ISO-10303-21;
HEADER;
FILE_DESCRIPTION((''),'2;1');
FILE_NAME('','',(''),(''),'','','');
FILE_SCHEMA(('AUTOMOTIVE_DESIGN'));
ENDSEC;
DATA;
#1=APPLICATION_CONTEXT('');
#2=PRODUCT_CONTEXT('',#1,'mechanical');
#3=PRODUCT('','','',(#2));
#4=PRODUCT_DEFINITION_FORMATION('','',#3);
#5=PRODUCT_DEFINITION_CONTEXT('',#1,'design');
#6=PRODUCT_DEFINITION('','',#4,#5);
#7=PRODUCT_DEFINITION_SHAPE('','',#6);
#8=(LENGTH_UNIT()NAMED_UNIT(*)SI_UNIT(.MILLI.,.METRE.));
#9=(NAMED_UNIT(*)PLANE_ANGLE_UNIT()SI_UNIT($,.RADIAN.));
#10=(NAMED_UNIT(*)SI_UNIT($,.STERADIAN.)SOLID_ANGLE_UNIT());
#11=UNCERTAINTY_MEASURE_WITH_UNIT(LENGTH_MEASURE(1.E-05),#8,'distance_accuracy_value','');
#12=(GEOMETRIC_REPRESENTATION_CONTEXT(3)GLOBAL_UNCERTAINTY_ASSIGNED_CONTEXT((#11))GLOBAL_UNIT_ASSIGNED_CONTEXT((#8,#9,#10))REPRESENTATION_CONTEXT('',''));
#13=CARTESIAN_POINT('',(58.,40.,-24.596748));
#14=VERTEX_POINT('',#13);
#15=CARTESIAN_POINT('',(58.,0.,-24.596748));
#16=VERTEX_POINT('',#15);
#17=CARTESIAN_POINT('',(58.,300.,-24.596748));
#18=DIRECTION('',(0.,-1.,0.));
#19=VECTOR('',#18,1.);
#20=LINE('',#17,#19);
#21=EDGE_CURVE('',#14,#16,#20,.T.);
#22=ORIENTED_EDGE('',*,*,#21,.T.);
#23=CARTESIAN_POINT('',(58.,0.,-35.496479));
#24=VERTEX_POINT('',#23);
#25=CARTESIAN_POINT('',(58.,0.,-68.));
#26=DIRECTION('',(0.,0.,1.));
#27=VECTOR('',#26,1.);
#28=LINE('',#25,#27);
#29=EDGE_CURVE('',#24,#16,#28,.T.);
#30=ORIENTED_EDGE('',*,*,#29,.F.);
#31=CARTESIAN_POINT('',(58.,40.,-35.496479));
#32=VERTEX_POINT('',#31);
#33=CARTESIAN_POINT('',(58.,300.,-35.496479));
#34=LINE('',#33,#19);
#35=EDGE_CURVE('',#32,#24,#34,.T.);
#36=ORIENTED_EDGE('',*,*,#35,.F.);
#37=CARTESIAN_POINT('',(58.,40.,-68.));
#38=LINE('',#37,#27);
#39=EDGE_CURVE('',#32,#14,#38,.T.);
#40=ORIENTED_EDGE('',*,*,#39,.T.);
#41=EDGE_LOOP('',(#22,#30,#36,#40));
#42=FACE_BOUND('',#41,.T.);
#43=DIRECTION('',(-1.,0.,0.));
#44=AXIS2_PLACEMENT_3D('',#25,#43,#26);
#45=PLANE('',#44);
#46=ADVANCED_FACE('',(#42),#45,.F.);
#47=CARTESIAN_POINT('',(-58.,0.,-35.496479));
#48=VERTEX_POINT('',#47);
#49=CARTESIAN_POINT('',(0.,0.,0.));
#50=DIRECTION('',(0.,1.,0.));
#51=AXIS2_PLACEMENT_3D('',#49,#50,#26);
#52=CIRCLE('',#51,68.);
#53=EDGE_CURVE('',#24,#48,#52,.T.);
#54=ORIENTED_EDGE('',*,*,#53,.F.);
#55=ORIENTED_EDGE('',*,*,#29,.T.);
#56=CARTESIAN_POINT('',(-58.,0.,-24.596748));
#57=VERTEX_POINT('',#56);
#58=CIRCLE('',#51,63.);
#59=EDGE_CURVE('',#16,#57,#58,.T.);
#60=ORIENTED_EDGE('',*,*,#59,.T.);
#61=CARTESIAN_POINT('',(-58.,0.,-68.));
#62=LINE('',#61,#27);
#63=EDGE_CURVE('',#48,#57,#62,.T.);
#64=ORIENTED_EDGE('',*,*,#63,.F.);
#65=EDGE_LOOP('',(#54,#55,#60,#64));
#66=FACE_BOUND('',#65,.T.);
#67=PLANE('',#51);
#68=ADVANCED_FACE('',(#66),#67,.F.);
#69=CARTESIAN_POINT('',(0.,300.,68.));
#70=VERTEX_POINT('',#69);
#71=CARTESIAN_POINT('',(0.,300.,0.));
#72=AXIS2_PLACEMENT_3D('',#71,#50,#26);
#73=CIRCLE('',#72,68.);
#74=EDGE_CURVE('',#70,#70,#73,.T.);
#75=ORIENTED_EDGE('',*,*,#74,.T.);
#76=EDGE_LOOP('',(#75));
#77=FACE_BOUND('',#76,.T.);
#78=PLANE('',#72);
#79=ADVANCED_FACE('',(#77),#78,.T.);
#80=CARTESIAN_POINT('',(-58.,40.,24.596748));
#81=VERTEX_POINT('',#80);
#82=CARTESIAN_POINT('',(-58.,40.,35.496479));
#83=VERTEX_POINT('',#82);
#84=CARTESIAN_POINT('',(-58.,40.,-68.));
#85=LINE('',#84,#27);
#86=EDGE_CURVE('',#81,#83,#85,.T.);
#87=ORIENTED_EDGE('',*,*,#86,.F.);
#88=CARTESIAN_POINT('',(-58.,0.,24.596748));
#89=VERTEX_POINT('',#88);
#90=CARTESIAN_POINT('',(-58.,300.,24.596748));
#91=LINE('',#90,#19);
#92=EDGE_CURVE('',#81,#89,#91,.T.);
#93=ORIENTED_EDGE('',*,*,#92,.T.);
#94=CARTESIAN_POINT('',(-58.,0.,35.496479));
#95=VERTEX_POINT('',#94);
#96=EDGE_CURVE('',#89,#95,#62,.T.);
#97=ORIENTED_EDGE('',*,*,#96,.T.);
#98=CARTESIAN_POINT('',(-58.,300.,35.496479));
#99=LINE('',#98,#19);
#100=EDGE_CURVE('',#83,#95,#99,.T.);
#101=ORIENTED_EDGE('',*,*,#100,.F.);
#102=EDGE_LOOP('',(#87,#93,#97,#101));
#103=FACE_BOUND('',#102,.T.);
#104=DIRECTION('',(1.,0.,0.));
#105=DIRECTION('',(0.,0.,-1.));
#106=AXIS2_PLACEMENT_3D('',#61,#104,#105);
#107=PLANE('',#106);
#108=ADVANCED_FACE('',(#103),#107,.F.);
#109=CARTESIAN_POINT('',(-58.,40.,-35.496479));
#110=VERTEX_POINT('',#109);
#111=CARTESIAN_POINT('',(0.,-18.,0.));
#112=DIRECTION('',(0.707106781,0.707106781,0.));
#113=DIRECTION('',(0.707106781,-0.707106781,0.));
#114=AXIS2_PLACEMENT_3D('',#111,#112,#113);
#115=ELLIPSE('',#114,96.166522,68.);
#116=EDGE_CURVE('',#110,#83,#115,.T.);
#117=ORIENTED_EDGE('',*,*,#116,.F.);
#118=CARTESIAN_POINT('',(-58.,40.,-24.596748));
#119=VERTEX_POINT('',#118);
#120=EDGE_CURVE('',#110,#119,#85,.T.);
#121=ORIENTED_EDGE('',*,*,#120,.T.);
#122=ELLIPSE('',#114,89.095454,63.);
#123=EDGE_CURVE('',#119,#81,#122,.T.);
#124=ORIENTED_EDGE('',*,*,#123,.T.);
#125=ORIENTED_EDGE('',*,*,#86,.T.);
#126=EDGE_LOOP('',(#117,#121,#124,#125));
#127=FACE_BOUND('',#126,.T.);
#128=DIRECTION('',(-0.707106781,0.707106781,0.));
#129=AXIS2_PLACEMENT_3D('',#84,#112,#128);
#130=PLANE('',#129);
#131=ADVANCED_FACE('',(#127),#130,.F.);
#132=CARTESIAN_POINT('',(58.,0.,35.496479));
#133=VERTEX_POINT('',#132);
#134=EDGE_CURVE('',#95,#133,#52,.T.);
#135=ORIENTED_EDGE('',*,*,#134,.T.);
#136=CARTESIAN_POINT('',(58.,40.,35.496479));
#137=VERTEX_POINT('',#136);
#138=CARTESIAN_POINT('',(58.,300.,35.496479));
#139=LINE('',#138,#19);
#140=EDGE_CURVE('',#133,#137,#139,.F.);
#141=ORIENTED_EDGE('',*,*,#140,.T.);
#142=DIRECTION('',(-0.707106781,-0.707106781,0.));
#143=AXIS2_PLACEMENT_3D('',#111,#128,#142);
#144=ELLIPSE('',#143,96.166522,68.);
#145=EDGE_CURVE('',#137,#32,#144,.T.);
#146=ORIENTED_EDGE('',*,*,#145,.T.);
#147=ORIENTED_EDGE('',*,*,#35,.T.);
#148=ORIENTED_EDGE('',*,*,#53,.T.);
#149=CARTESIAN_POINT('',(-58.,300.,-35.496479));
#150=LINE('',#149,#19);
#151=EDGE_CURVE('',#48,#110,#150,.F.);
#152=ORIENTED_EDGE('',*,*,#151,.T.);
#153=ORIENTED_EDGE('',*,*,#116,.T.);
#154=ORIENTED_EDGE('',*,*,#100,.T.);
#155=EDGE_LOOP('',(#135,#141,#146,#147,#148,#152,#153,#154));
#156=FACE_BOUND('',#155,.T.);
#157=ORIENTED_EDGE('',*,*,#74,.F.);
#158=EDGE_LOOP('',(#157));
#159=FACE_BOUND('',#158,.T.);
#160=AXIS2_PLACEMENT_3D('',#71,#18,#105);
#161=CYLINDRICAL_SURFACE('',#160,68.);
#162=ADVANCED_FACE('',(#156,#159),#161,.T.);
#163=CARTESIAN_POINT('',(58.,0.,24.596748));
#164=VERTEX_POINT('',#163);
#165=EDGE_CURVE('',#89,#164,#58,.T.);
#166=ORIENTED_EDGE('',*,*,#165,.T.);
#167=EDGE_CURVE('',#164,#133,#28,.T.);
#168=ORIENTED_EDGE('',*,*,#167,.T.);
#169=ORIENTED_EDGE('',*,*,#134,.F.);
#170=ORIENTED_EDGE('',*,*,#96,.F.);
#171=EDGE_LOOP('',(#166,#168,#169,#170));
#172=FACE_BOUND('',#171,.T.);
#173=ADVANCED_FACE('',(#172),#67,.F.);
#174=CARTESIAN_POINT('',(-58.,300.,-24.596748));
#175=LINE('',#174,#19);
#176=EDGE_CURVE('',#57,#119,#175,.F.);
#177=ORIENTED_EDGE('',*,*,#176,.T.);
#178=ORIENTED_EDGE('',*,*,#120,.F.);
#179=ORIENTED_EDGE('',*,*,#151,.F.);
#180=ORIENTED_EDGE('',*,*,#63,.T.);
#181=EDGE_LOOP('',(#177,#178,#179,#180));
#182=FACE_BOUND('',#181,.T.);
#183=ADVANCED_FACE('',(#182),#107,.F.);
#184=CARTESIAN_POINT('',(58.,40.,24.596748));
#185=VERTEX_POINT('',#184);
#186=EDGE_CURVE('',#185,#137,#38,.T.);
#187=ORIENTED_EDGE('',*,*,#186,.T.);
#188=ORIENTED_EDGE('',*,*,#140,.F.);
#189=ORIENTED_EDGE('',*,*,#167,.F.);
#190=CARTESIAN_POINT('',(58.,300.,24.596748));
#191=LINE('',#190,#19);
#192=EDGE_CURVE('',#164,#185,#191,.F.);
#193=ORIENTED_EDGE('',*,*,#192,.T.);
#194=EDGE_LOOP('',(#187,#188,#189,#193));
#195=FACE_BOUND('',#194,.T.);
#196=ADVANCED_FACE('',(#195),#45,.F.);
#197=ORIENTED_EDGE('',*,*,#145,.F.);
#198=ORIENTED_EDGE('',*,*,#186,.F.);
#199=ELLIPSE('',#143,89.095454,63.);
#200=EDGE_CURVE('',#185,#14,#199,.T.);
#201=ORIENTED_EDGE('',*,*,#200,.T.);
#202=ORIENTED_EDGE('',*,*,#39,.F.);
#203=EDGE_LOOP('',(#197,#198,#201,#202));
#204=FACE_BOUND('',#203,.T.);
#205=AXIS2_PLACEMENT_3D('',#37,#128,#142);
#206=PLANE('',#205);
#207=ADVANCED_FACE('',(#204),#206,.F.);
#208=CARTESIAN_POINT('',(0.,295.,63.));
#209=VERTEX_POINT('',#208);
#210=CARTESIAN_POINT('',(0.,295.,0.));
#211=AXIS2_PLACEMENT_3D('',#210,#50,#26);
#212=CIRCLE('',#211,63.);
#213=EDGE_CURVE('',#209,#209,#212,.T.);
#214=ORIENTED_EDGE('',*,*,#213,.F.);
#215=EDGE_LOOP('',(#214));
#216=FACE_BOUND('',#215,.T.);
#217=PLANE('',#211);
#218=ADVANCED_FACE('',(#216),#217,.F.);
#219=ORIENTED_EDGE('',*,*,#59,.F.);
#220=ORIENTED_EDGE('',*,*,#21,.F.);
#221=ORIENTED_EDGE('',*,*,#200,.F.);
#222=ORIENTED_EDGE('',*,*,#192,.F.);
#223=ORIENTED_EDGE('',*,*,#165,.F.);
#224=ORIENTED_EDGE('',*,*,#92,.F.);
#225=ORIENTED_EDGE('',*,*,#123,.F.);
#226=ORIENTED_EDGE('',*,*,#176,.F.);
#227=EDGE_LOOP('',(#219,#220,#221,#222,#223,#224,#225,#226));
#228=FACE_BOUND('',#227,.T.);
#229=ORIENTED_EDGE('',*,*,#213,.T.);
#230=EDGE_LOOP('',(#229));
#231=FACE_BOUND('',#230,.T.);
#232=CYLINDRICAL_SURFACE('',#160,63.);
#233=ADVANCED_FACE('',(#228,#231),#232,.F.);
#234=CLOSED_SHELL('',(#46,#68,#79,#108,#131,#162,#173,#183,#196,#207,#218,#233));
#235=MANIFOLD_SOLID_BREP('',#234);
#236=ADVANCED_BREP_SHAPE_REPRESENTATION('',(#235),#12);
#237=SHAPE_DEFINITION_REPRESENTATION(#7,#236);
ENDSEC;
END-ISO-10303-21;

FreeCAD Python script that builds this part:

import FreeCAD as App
import Part
import Sketcher


def faces_at(feature, points):
    """Names of the faces that lie closest to the given points."""
    faces = feature.Shape.Faces
    near = lambda p: min(range(len(faces)), key=lambda i: faces[i].distToShape(Part.Vertex(*p))[0])
    return sorted({f"Face{near(p) + 1}" for p in points})


def add_polygon(sketch, points):
    """Adds a closed chain of lines whose ends are joined by coincident constraints."""
    first, n = sketch.GeometryCount, len(points)
    for a, b in zip(points, points[1:] + points[:1]):
        sketch.addGeometry(Part.LineSegment(App.Vector(*a, 0), App.Vector(*b, 0)), False)
    for i in range(n):
        sketch.addConstraint(Sketcher.Constraint("Coincident", first + i, 2, first + (i + 1) % n, 1))

doc = App.newDocument("Part")
body = doc.addObject("PartDesign::Body", "Body")

# Sketch on XZ plane
sketch1 = body.newObject("Sketcher::SketchObject", "Sketch")
sketch1.AttachmentSupport = (doc.getObject("XZ_Plane"), [""])
sketch1.MapMode = "FlatFace"
sketch1.addGeometry(Part.Circle(App.Vector(0, 0, 0), App.Vector(0, 0, 1), 68), False)
sketch1.addConstraint([
    Sketcher.Constraint("Coincident", 0, 3, -1, 1),
    Sketcher.Constraint("Diameter", 0, 136.0),
])
pad1 = body.newObject("PartDesign::Pad", "Pad")
pad1.Profile = sketch1
pad1.Length = 300
pad1.Reversed = True
doc.recompute()

thickness = body.newObject("PartDesign::Thickness", "Thickness")
thickness.Base = (pad1, faces_at(pad1, [(0, 0, 0)]))
thickness.Value = 5
thickness.Reversed = True
thickness.Join = "Intersection"

# Sketch on XY plane
sketch2 = body.newObject("Sketcher::SketchObject", "Sketch001")
sketch2.AttachmentSupport = (doc.getObject("XY_Plane"), [""])
sketch2.MapMode = "FlatFace"
add_polygon(sketch2, [(-68, 0), (-58, 0), (-58, 40), (-68, 50)])  # lines 0-3
add_polygon(sketch2, [(58, 0), (68, 0), (68, 50), (58, 40)])  # lines 4-7
sketch2.addConstraint([
    Sketcher.Constraint("Horizontal", 0),
    Sketcher.Constraint("Vertical", 1),
    Sketcher.Constraint("Vertical", 3),
    Sketcher.Constraint("Horizontal", 4),
    Sketcher.Constraint("Vertical", 5),
    Sketcher.Constraint("Vertical", 7),
    Sketcher.Constraint("Symmetric", 3, 2, 4, 2, -1, 1),
    Sketcher.Constraint("Symmetric", 1, 2, 6, 2, -2),
    Sketcher.Constraint("PointOnObject", 0, 2, -1),
    Sketcher.Constraint("Perpendicular", 2, 6),
    Sketcher.Constraint("Horizontal", 2, 2, 5, 2),
    Sketcher.Constraint("DistanceX", 0, 1, 0, 2, 10.0),
    Sketcher.Constraint("DistanceY", 1, 1, 1, 2, 40.0),
    Sketcher.Constraint("DistanceX", 0, 2, -1, 1, 58.0),
])
pocket1 = body.newObject("PartDesign::Pocket", "Pocket")
pocket1.Profile = sketch2
pocket1.Type = "ThroughAll"
pocket1.Midplane = True

doc.recompute()
